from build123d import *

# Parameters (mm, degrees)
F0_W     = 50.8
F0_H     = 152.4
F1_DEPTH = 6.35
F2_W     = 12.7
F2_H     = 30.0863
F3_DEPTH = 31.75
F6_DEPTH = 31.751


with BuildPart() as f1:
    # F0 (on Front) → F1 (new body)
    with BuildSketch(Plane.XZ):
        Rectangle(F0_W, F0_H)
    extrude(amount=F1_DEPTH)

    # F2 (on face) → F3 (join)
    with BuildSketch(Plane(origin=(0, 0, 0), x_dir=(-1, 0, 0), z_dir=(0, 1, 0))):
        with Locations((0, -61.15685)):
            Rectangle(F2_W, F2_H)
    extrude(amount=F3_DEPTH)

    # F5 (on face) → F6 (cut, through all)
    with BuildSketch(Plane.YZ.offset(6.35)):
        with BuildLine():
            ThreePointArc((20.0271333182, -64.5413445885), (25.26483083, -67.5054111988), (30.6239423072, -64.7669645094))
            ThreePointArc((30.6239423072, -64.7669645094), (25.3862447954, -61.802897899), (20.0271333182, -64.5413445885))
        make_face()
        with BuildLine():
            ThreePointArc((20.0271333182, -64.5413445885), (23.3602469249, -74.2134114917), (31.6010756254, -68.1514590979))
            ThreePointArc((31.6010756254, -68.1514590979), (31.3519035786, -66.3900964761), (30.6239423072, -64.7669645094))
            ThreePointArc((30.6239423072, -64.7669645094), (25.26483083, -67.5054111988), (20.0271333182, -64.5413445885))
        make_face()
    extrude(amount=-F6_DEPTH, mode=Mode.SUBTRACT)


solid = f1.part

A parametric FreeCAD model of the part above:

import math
import FreeCAD as App
import Part
import Sketcher

V = App.Vector
Q = App.Units.Quantity

doc = App.newDocument("Part")
body = doc.addObject("PartDesign::Body", "Body")

sketch1 = body.newObject("Sketcher::SketchObject", "Sketch")
sketch1.AttachmentSupport = (doc.getObject("XZ_Plane"), [""])
sketch1.MapMode = "FlatFace"
sketch1.addGeometry([
    Part.LineSegment(V(-25, 76, 0), V(-25, -76, 0)),
    Part.LineSegment(V(-25, -76, 0), V(25, -76, 0)),
    Part.LineSegment(V(25, -76, 0), V(25, 76, 0)),
    Part.LineSegment(V(25, 76, 0), V(-25, 76, 0)),
], False)
sketch1.addConstraint([
    Sketcher.Constraint("Coincident", 0, 2, 1, 1),
    Sketcher.Constraint("Coincident", 1, 2, 2, 1),
    Sketcher.Constraint("Coincident", 2, 2, 3, 1),
    Sketcher.Constraint("Coincident", 3, 2, 0, 1),
    Sketcher.Constraint("Vertical", 0),
    Sketcher.Constraint("Horizontal", 1),
    Sketcher.Constraint("Vertical", 2),
    Sketcher.Constraint("Horizontal", 3),
    Sketcher.Constraint("Symmetric", 0, 2, 2, 2, -1, 1),
    Sketcher.Constraint("DistanceX", 1, 1, 1, 2, Q("2 in")),
    Sketcher.Constraint("DistanceY", 0, 2, 0, 1, Q("6 in")),
])
pad1 = body.newObject("PartDesign::Pad", "Pad")
pad1.Profile = sketch1
pad1.Length = Q("0.25 in")

sketch2 = body.newObject("Sketcher::SketchObject", "Sketch001")
sketch2.AttachmentSupport = (doc.getObject("XZ_Plane"), [""])
sketch2.MapMode = "FlatFace"
sketch2.addGeometry([
    Part.LineSegment(V(6, -46, 0), V(6, -76, 0)),
    Part.LineSegment(V(6, -76, 0), V(-6, -76, 0)),
    Part.LineSegment(V(-6, -76, 0), V(-6, -46, 0)),
    Part.LineSegment(V(-6, -46, 0), V(6, -46, 0)),
], False)
sketch2.addConstraint([
    Sketcher.Constraint("Coincident", 0, 2, 1, 1),
    Sketcher.Constraint("Coincident", 1, 2, 2, 1),
    Sketcher.Constraint("Coincident", 2, 2, 3, 1),
    Sketcher.Constraint("Coincident", 3, 2, 0, 1),
    Sketcher.Constraint("Vertical", 0),
    Sketcher.Constraint("Horizontal", 1),
    Sketcher.Constraint("Vertical", 2),
    Sketcher.Constraint("Horizontal", 3),
    Sketcher.Constraint("DistanceX", 1, 2, 1, 1, Q("0.5 in")),
    Sketcher.Constraint("DistanceY", 0, 2, -1, 1, Q("3 in")),
    Sketcher.Constraint("DistanceX", -1, 1, 0, 2, Q("0.25 in")),
    Sketcher.Constraint("DistanceY", 0, 2, 0, 1, Q("1.1845 in")),
])
pad2 = body.newObject("PartDesign::Pad", "Pad001")
pad2.Profile = sketch2
pad2.Length = Q("1.25 in")
pad2.Reversed = True

sketch3 = body.newObject("Sketcher::SketchObject", "Sketch002")
sketch3.AttachmentSupport = (doc.getObject("YZ_Plane"), [""])
sketch3.MapMode = "FlatFace"
sketch3.AttachmentOffset = App.Placement(V(0, 0, 0.25 * 25.4), App.Rotation())
sketch3.addGeometry([
    Part.ArcOfCircle(Part.Circle(V(25.3, -68.2, 0), V(0, 0, 1), 6.3), math.radians(32), math.radians(145)),
    Part.ArcOfCircle(Part.Circle(V(25.3, -68.2, 0), V(0, 0, 1), 6.3), math.radians(145), math.radians(360)),
    Part.ArcOfCircle(Part.Circle(V(25.3, -68.2, 0), V(0, 0, 1), 6.3), math.radians(0), math.radians(32)),
], False)
sketch3.addConstraint([
    Sketcher.Constraint("Tangent", 0, 2, 1, 1),
    Sketcher.Constraint("Tangent", 1, 2, 2, 1),
    Sketcher.Constraint("Tangent", 2, 2, 0, 1),
    Sketcher.Constraint("Horizontal", 2, 3, 1, 2),
    Sketcher.Constraint("Radius", 0, Q("0.25 in")),
    Sketcher.Constraint("DistanceY", 0, 3, -1, 1, 68.151459),
    Sketcher.Constraint("DistanceX", 0, 2, 2, 2, 10.596809),
    Sketcher.Constraint("DistanceY", 2, 2, 0, 2, 0.22562),
    Sketcher.Constraint("DistanceX", -1, 1, 0, 3, 25.251076),
])
pocket1 = body.newObject("PartDesign::Pocket", "Pocket")
pocket1.Profile = sketch3
pocket1.Type = "ThroughAll"

doc.recompute()
